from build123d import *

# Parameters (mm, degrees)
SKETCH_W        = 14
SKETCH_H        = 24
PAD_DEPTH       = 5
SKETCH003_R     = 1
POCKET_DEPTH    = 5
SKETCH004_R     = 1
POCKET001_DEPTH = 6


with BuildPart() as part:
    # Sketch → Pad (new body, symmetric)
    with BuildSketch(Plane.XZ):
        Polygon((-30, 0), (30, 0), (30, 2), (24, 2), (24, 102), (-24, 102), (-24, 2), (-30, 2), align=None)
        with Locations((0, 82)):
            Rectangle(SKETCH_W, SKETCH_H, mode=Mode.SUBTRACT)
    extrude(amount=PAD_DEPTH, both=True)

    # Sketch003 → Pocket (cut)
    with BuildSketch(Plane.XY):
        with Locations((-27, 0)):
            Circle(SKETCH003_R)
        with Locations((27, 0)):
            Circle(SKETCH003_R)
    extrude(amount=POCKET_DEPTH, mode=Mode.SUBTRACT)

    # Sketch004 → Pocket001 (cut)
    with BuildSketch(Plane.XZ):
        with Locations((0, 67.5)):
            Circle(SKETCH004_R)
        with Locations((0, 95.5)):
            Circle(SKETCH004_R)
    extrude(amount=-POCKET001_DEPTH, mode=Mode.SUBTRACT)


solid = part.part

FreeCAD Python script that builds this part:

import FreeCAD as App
import Part
import Sketcher

V = App.Vector


def add_polygon(sketch, points):
    """Adds a closed chain of lines whose ends are joined by coincident constraints."""
    first, n = sketch.GeometryCount, len(points)
    for a, b in zip(points, points[1:] + points[:1]):
        sketch.addGeometry(Part.LineSegment(App.Vector(*a, 0), App.Vector(*b, 0)), False)
    for i in range(n):
        sketch.addConstraint(Sketcher.Constraint("Coincident", first + i, 2, first + (i + 1) % n, 1))

doc = App.newDocument("Part")
params = doc.addObject("Spreadsheet::Sheet", "Params")
for row, (alias, value) in enumerate([
    ("sketch1_width", "60 mm"),
    ("sketch1_width2", "6 mm"),
    ("sketch1_width3", "14 mm"),
    ("sketch1_height", "2 mm"),
    ("sketch1_height2", "100 mm"),
    ("pad1_length", "10 mm"),
    ("sketch2_diameter", "2 mm"),
    ("pocket1_length", "5 mm"),
    ("sketch3_diameter", "2 mm"),
    ("pocket2_length", "6 mm"),
], start=1):
    params.set(f"A{row}", alias)
    params.set(f"B{row}", "=" + value)
    params.setAlias(f"B{row}", alias)

body = doc.addObject("PartDesign::Body", "Body")

sketch1 = body.newObject("Sketcher::SketchObject", "Sketch")
sketch1.AttachmentSupport = (doc.getObject("XZ_Plane"), [""])
sketch1.MapMode = "FlatFace"
add_polygon(sketch1, [(-30, 0), (30, 0), (30, 2), (24, 2), (24, 102), (-24, 102), (-24, 2), (-30, 2)])
add_polygon(sketch1, [(7, 70), (-7, 70), (-7, 94), (7, 94)])
sketch1.addConstraint(Sketcher.Constraint("Horizontal", 0))
sketch1.addConstraint(Sketcher.Constraint("Vertical", 1))
sketch1.addConstraint(Sketcher.Constraint("Horizontal", 2))
sketch1.addConstraint(Sketcher.Constraint("Vertical", 3))
sketch1.addConstraint(Sketcher.Constraint("Horizontal", 4))
sketch1.addConstraint(Sketcher.Constraint("Vertical", 5))
sketch1.addConstraint(Sketcher.Constraint("Horizontal", 6))
sketch1.addConstraint(Sketcher.Constraint("Vertical", 7))
sketch1.addConstraint(Sketcher.Constraint("Horizontal", 8))
sketch1.addConstraint(Sketcher.Constraint("Vertical", 9))
sketch1.addConstraint(Sketcher.Constraint("Horizontal", 10))
sketch1.addConstraint(Sketcher.Constraint("Vertical", 11))
sketch1.addConstraint(Sketcher.Constraint("Symmetric", 0, 2, 7, 2, -1, 1))
sketch1.addConstraint(Sketcher.Constraint("Symmetric", 2, 2, 5, 2, -2))
sketch1.addConstraint(Sketcher.Constraint("DistanceX", 0, 1, 0, 2, 60.0))
sketch1.addConstraint(Sketcher.Constraint("DistanceX", 2, 2, 2, 1, 6.0))
sketch1.addConstraint(Sketcher.Constraint("DistanceX", 8, 2, 8, 1, 14.0))
sketch1.addConstraint(Sketcher.Constraint("DistanceY", 1, 1, 1, 2, 2.0))
sketch1.addConstraint(Sketcher.Constraint("DistanceY", 3, 1, 3, 2, 100.0))
sketch1.addConstraint(Sketcher.Constraint("DistanceY", 9, 1, 9, 2, 24.0))
sketch1.addConstraint(Sketcher.Constraint("DistanceX", 8, 2, -1, 1, 7.0))
sketch1.addConstraint(Sketcher.Constraint("DistanceY", -1, 1, 8, 2, 70.0))
sketch1.setExpression("Constraints[26]", "Params.sketch1_width")
sketch1.setExpression("Constraints[27]", "Params.sketch1_width2")
sketch1.setExpression("Constraints[28]", "Params.sketch1_width3")
sketch1.setExpression("Constraints[29]", "Params.sketch1_height")
sketch1.setExpression("Constraints[30]", "Params.sketch1_height2")
pad1 = body.newObject("PartDesign::Pad", "Pad")
pad1.Profile = sketch1
pad1.setExpression("Length", "Params.pad1_length")
pad1.Midplane = True

sketch2 = body.newObject("Sketcher::SketchObject", "Sketch001")
sketch2.AttachmentSupport = (doc.getObject("XY_Plane"), [""])
sketch2.MapMode = "FlatFace"
sketch2.addGeometry(Part.Circle(V(-27, 0, 0), V(0, 0, 1), 1), False)
sketch2.addGeometry(Part.Circle(V(27, 0, 0), V(0, 0, 1), 1), False)
sketch2.addConstraint(Sketcher.Constraint("Equal", 0, 1))
sketch2.addConstraint(Sketcher.Constraint("Symmetric", 0, 3, 1, 3, -1, 1))
sketch2.addConstraint(Sketcher.Constraint("PointOnObject", 0, 3, -1))
sketch2.addConstraint(Sketcher.Constraint("Diameter", 0, 2.0))
sketch2.addConstraint(Sketcher.Constraint("DistanceX", 0, 3, -1, 1, 27.0))
sketch2.setExpression("Constraints[3]", "Params.sketch2_diameter")
pocket1 = body.newObject("PartDesign::Pocket", "Pocket")
pocket1.Profile = sketch2
pocket1.setExpression("Length", "Params.pocket1_length")
pocket1.Reversed = True

sketch3 = body.newObject("Sketcher::SketchObject", "Sketch002")
sketch3.AttachmentSupport = (doc.getObject("XZ_Plane"), [""])
sketch3.MapMode = "FlatFace"
sketch3.addGeometry(Part.Circle(V(0, 67.5, 0), V(0, 0, 1), 1), False)
sketch3.addGeometry(Part.Circle(V(0, 95.5, 0), V(0, 0, 1), 1), False)
sketch3.addConstraint(Sketcher.Constraint("Equal", 0, 1))
sketch3.addConstraint(Sketcher.Constraint("PointOnObject", 0, 3, -2))
sketch3.addConstraint(Sketcher.Constraint("PointOnObject", 1, 3, -2))
sketch3.addConstraint(Sketcher.Constraint("Diameter", 0, 2.0))
sketch3.addConstraint(Sketcher.Constraint("DistanceY", 0, 3, 1, 3, 28.0))
sketch3.addConstraint(Sketcher.Constraint("DistanceY", -1, 1, 0, 3, 67.5))
sketch3.setExpression("Constraints[3]", "Params.sketch3_diameter")
pocket2 = body.newObject("PartDesign::Pocket", "Pocket001")
pocket2.Profile = sketch3
pocket2.setExpression("Length", "Params.pocket2_length")

doc.recompute()
